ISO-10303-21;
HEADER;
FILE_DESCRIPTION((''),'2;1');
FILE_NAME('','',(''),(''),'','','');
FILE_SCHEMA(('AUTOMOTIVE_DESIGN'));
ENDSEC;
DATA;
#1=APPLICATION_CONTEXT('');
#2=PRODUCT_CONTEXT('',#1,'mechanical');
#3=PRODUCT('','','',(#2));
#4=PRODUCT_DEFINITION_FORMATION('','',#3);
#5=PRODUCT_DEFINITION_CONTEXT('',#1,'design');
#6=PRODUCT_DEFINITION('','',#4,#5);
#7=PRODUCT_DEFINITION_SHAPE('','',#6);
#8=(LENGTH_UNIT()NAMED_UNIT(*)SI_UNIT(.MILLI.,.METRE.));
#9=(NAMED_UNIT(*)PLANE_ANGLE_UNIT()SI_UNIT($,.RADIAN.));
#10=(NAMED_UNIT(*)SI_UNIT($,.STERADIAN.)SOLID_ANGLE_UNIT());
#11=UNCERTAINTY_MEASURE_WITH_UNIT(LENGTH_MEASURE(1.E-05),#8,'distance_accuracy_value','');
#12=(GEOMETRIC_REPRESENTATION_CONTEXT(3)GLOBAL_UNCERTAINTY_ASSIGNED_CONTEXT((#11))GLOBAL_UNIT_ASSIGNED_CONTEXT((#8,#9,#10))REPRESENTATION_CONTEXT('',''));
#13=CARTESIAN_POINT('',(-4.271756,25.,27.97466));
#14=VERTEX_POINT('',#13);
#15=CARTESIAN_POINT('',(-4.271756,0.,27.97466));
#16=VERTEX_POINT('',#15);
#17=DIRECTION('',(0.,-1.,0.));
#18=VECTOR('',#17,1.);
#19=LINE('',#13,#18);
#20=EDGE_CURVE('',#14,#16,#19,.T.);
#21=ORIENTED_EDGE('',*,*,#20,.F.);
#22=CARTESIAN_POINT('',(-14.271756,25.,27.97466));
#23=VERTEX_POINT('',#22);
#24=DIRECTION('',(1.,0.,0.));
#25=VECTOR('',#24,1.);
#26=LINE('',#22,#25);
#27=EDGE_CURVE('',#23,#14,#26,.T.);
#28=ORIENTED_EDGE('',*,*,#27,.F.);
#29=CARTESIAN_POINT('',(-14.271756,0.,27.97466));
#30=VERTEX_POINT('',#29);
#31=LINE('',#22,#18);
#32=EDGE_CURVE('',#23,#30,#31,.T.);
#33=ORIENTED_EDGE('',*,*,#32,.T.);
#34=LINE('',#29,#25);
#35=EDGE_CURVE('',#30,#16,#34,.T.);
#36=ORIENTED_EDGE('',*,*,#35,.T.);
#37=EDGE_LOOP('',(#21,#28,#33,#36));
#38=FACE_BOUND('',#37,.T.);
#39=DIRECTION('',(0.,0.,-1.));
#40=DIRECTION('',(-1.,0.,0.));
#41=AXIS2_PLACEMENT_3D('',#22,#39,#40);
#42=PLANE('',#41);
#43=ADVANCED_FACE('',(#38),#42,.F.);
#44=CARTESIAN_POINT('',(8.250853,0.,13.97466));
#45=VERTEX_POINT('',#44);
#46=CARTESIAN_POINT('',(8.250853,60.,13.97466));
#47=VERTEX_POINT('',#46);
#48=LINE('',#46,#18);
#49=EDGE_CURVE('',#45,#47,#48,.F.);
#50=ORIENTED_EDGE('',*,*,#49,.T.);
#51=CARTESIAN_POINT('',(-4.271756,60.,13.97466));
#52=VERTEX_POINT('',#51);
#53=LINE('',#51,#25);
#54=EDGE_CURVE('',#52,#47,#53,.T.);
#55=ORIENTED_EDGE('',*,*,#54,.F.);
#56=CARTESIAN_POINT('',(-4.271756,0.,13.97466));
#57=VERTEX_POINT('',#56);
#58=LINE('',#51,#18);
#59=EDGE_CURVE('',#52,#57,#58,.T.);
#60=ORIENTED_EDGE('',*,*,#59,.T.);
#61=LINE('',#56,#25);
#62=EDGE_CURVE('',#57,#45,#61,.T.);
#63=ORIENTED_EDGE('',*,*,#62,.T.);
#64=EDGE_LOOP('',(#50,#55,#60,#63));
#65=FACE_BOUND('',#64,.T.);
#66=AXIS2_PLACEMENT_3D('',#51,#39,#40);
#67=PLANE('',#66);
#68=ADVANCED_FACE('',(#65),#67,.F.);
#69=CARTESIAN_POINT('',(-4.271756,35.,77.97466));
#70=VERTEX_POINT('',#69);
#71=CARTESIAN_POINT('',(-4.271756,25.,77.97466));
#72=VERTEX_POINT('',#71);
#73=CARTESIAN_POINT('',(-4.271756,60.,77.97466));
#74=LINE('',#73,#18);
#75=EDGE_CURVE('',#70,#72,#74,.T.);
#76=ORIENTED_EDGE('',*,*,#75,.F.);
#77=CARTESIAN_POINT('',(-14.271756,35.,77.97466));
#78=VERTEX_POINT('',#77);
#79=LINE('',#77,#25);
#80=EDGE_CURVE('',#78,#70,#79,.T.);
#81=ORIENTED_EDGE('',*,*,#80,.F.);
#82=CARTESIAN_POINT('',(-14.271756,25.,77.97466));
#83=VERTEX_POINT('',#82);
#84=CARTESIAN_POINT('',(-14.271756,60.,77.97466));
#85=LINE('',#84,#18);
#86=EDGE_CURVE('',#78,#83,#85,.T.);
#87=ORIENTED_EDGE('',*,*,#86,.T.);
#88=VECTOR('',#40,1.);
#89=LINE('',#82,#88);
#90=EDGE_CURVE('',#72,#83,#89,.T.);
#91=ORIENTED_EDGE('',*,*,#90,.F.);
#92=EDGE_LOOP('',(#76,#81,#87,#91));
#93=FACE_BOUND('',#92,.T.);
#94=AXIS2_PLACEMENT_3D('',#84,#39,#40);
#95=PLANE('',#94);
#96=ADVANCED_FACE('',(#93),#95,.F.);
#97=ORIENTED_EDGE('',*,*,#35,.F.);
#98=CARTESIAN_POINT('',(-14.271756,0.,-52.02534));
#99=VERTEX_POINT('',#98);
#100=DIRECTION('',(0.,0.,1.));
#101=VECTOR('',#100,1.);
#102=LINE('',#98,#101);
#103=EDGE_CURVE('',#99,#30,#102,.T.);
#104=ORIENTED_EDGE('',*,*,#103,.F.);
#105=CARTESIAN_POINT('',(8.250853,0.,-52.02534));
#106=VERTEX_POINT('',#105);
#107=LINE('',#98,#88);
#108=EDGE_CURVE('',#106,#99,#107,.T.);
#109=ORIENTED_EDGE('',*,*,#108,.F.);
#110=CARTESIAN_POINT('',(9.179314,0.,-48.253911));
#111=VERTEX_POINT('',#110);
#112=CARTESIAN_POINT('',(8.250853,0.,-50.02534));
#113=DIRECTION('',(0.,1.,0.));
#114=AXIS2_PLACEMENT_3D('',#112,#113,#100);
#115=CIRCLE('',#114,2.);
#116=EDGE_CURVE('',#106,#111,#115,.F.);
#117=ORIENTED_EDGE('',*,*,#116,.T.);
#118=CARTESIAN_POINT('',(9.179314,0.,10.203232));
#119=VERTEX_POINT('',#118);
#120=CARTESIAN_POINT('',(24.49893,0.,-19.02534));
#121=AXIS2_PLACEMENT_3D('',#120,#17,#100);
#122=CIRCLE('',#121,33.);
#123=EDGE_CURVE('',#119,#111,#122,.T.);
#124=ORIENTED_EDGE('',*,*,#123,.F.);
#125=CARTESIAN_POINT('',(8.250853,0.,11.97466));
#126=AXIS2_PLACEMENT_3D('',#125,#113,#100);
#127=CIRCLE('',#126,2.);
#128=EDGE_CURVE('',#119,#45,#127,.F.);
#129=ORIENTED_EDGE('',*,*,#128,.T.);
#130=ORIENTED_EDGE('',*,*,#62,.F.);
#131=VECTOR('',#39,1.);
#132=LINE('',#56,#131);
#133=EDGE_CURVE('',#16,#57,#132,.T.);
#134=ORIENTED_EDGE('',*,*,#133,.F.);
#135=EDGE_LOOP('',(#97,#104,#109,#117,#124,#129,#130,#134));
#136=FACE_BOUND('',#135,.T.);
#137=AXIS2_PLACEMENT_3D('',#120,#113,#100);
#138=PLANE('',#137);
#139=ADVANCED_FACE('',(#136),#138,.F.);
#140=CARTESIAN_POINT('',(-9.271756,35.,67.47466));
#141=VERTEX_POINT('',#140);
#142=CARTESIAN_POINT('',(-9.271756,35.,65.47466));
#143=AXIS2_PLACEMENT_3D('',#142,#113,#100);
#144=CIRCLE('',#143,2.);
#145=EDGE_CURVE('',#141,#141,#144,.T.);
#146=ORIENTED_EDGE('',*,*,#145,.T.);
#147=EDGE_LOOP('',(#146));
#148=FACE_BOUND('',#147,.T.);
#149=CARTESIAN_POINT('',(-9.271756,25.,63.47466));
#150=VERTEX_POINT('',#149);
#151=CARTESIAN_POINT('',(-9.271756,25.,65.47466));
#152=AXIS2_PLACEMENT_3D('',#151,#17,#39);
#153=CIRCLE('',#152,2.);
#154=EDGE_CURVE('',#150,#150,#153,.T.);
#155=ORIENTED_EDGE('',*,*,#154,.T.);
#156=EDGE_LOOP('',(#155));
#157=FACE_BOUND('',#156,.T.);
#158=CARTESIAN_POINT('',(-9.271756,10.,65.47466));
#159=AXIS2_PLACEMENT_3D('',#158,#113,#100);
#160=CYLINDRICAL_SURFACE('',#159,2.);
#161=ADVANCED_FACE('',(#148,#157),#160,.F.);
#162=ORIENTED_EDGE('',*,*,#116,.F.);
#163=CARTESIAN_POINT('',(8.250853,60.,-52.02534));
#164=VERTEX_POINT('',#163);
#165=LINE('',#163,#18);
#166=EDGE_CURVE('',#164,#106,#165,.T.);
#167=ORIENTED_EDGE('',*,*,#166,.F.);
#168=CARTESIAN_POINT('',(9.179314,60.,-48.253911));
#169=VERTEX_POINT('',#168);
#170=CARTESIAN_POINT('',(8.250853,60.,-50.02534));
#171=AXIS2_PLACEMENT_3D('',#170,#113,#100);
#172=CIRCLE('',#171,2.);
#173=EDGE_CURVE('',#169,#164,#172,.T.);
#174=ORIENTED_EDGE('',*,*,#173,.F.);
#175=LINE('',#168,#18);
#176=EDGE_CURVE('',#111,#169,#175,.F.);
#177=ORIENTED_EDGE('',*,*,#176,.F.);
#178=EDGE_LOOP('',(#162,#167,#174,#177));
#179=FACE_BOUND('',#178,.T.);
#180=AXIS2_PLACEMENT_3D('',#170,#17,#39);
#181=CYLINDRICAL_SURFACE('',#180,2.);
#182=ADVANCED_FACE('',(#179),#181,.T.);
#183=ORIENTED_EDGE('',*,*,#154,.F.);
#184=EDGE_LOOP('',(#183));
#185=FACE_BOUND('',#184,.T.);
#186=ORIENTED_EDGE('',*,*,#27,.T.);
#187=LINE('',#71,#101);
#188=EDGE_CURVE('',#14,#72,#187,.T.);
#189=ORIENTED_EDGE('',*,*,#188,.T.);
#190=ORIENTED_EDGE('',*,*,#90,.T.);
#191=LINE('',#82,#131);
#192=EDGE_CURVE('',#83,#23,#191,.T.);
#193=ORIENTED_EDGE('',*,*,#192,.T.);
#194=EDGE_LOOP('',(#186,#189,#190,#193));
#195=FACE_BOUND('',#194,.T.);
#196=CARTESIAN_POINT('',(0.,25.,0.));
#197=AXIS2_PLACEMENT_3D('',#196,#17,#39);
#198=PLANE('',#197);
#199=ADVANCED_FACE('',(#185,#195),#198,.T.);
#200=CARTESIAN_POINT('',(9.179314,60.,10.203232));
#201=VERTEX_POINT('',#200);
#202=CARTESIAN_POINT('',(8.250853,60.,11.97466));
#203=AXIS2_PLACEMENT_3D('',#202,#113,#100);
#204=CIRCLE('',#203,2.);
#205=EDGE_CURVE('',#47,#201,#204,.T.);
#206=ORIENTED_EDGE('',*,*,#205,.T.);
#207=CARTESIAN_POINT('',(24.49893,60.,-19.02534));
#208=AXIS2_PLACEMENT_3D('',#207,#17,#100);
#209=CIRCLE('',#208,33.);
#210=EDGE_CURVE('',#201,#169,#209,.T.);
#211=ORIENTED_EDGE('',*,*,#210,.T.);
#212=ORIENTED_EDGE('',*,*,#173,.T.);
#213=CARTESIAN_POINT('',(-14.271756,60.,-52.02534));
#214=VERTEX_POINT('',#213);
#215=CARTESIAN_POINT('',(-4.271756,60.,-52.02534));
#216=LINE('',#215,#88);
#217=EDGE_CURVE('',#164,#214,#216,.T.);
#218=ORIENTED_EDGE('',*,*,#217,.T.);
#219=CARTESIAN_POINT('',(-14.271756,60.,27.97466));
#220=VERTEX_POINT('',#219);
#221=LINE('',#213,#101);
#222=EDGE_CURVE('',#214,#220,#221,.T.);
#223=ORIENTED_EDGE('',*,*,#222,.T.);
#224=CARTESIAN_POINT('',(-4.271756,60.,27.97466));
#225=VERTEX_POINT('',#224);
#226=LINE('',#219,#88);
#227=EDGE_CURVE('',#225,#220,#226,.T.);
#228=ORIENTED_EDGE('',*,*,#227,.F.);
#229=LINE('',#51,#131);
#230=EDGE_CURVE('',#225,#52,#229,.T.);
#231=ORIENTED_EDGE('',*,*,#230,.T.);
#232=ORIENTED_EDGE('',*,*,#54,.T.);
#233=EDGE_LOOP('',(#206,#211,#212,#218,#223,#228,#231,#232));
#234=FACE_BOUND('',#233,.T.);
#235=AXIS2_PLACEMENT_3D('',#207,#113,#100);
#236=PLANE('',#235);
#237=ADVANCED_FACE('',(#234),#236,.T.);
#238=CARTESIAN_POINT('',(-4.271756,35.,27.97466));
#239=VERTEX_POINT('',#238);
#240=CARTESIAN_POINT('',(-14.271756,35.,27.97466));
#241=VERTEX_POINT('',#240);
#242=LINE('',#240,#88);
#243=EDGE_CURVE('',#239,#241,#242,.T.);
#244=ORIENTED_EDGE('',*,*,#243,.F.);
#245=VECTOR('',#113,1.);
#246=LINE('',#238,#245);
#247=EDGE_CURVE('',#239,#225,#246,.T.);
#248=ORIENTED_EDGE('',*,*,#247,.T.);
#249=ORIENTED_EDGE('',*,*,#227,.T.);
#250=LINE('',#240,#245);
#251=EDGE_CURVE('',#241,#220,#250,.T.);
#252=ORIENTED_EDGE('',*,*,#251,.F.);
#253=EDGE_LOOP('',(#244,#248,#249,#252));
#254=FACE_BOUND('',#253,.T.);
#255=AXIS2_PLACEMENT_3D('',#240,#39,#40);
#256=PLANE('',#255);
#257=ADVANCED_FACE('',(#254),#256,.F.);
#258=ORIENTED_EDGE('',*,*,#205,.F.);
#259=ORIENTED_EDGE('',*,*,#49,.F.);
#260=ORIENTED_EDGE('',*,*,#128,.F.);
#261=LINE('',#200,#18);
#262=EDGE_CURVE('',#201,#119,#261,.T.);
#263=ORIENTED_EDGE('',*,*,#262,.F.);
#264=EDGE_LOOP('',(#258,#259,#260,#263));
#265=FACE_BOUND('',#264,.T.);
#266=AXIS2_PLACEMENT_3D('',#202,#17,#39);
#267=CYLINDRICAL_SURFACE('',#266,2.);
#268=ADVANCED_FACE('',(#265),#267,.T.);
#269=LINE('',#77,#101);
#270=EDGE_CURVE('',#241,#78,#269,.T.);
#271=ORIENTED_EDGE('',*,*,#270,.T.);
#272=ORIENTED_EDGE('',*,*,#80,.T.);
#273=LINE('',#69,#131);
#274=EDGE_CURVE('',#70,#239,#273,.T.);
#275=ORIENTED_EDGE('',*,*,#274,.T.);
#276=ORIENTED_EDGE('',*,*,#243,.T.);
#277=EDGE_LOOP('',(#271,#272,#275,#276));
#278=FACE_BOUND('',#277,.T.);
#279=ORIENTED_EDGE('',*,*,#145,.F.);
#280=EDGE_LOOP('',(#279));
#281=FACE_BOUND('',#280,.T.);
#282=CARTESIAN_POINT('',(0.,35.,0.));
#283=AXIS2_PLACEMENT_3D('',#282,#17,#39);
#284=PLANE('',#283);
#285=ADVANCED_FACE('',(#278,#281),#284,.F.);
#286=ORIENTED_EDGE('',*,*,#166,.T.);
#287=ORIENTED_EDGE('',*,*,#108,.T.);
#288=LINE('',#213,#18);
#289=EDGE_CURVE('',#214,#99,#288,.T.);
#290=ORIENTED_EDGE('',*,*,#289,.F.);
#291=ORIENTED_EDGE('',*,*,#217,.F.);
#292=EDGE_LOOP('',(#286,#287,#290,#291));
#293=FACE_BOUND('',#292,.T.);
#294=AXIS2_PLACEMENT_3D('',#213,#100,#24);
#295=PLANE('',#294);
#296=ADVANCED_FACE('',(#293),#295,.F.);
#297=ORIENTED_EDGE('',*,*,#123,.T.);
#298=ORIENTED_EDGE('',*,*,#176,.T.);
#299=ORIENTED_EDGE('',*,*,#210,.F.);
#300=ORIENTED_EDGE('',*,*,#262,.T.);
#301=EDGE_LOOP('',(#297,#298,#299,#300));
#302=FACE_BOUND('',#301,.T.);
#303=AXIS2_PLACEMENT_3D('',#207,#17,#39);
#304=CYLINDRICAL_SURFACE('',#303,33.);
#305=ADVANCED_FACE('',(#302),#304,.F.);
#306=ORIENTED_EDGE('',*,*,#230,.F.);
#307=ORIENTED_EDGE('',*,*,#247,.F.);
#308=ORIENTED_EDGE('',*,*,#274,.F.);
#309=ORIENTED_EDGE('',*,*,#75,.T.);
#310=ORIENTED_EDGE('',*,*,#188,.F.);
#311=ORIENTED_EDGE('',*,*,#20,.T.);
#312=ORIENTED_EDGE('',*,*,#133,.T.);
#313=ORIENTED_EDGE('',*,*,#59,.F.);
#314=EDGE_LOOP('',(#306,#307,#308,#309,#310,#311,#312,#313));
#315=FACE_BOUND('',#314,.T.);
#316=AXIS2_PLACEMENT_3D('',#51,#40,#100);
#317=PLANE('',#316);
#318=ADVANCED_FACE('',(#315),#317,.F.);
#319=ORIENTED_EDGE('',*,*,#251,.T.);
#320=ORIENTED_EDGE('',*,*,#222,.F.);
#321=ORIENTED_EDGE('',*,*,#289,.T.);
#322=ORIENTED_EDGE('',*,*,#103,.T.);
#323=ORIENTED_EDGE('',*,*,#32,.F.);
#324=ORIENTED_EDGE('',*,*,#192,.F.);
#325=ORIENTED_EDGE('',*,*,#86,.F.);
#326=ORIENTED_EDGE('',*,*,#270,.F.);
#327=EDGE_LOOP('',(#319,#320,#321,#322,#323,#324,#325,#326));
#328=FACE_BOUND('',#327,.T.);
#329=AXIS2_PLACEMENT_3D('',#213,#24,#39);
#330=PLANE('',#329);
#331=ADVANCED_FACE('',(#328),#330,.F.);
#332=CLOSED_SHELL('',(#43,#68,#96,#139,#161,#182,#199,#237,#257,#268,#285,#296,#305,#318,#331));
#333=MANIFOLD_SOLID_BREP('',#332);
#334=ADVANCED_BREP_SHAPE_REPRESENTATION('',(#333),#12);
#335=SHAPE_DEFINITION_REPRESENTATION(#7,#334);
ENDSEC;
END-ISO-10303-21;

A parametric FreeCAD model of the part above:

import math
import FreeCAD as App
import Part
import Sketcher

V = App.Vector
Q = App.Units.Quantity


def edges_at(feature, points):
    """Names of the edges that pass closest to the given points."""
    edges = feature.Shape.Edges
    near = lambda p: min(range(len(edges)), key=lambda i: edges[i].distToShape(Part.Vertex(*p))[0])
    return sorted({f"Edge{near(p) + 1}" for p in points})


def add_polygon(sketch, points):
    """Adds a closed chain of lines whose ends are joined by coincident constraints."""
    first, n = sketch.GeometryCount, len(points)
    for a, b in zip(points, points[1:] + points[:1]):
        sketch.addGeometry(Part.LineSegment(App.Vector(*a, 0), App.Vector(*b, 0)), False)
    for i in range(n):
        sketch.addConstraint(Sketcher.Constraint("Coincident", first + i, 2, first + (i + 1) % n, 1))

doc = App.newDocument("Part")
body = doc.addObject("PartDesign::Body", "Body")

# Sketch on XZ plane
sketch1 = doc.addObject("Sketcher::SketchObject", "Sketch")
body.addObject(sketch1)
sketch1.AttachmentSupport = (doc.XZ_Plane, [""])
sketch1.MapMode = "FlatFace"
sketch1.addGeometry([
    Part.ArcOfCircle(Part.Circle(V(24, -19, 0), V(0, 0, 1), 33), math.radians(90), math.radians(270)),  # 0
    Part.LineSegment(V(24, -52, 0), V(-14, -52, 0)),  # 1
    Part.LineSegment(V(-14, -52, 0), V(-14, 78, 0)),  # 2
    Part.LineSegment(V(-14, 78, 0), V(-4, 78, 0)),  # 3
    Part.LineSegment(V(-4, 78, 0), V(-4, 14, 0)),  # 4
    Part.LineSegment(V(-4, 14, 0), V(24, 14, 0)),  # 5
], False)
sketch1.addConstraint([
    Sketcher.Constraint("Tangent", 0, 2, 1, 1),
    Sketcher.Constraint("Coincident", 1, 2, 2, 1),
    Sketcher.Constraint("Coincident", 2, 2, 3, 1),
    Sketcher.Constraint("Coincident", 3, 2, 4, 1),
    Sketcher.Constraint("Coincident", 4, 2, 5, 1),
    Sketcher.Constraint("Tangent", 5, 2, 0, 1),
    Sketcher.Constraint("Horizontal", 1),
    Sketcher.Constraint("Vertical", 2),
    Sketcher.Constraint("Horizontal", 3),
    Sketcher.Constraint("Vertical", 4),
    Sketcher.Constraint("Horizontal", 5),
    Sketcher.Constraint("Radius", 0, Q("33 mm")),
    Sketcher.Constraint("DistanceX", 3, 1, 3, 2, Q("10 mm")),
    Sketcher.Constraint("DistanceY", 2, 1, 2, 2, Q("130 mm")),
    Sketcher.Constraint("DistanceX", 1, 2, 1, 1, Q("38.770686 mm")),
    Sketcher.Constraint("DistanceX", -1, 1, 0, 3, Q("24.49893 mm")),
    Sketcher.Constraint("DistanceY", 0, 3, -1, 1, Q("19.02534 mm")),
])
pad1 = doc.addObject("PartDesign::Pad", "Pad")
body.addObject(pad1)
pad1.Profile = sketch1
pad1.Length = 60
pad1.Reversed = True

# Sketch on XZ plane
sketch2 = doc.addObject("Sketcher::SketchObject", "Sketch001")
body.addObject(sketch2)
sketch2.AttachmentSupport = (doc.XZ_Plane, [""])
sketch2.MapMode = "FlatFace"
sketch2.AttachmentOffset = App.Placement(V(0, 0, -60), App.Rotation())
add_polygon(sketch2, [(-14, 28), (-14, 78), (-4, 78), (-4, 28)])  # lines 0-3
sketch2.addConstraint([
    Sketcher.Constraint("Vertical", 0),
    Sketcher.Constraint("Horizontal", 1),
    Sketcher.Constraint("Vertical", 2),
    Sketcher.Constraint("Horizontal", 3),
    Sketcher.Constraint("DistanceX", 1, 1, 1, 2, Q("10 mm")),
    Sketcher.Constraint("DistanceY", 0, 1, 0, 2, Q("50 mm")),
    Sketcher.Constraint("DistanceY", -1, 1, 0, 2, Q("77.97466 mm")),
    Sketcher.Constraint("DistanceX", 0, 2, -1, 1, Q("14.271756 mm")),
])
pocket1 = doc.addObject("PartDesign::Pocket", "Pocket")
body.addObject(pocket1)
pocket1.Profile = sketch2
pocket1.Length = 25
pocket1.Reversed = True

# Sketch on XZ plane
sketch3 = doc.addObject("Sketcher::SketchObject", "Sketch002")
body.addObject(sketch3)
sketch3.AttachmentSupport = (doc.XZ_Plane, [""])
sketch3.MapMode = "FlatFace"
add_polygon(sketch3, [(-14, 78), (-14, 28), (-4, 28), (-4, 78)])  # lines 0-3
sketch3.addConstraint([
    Sketcher.Constraint("Vertical", 0),
    Sketcher.Constraint("Horizontal", 1),
    Sketcher.Constraint("Vertical", 2),
    Sketcher.Constraint("Horizontal", 3),
    Sketcher.Constraint("DistanceX", 1, 1, 1, 2, Q("10 mm")),
    Sketcher.Constraint("DistanceY", 0, 2, 0, 1, Q("50 mm")),
    Sketcher.Constraint("DistanceY", -1, 1, 0, 2, Q("27.97466 mm")),
    Sketcher.Constraint("DistanceX", 0, 2, -1, 1, Q("14.271756 mm")),
])
pocket2 = doc.addObject("PartDesign::Pocket", "Pocket001")
body.addObject(pocket2)
pocket2.Profile = sketch3
pocket2.Length = 25
doc.recompute()

fillet = doc.addObject("PartDesign::Fillet", "Fillet")
body.addObject(fillet)
fillet.Base = (pocket2, edges_at(pocket2, [(24.499, 30, -52.025), (24.499, 30, 13.975)]))
fillet.Radius = 2

# Sketch on XZ plane
sketch4 = doc.addObject("Sketcher::SketchObject", "Sketch003")
body.addObject(sketch4)
sketch4.AttachmentSupport = (doc.XZ_Plane, [""])
sketch4.MapMode = "FlatFace"
sketch4.AttachmentOffset = App.Placement(V(0, 0, -35), App.Rotation())
sketch4.addGeometry(Part.Circle(V(-9.3, 65.5, 0), V(0, 0, 1), 2), False)
sketch4.addConstraint([
    Sketcher.Constraint("Diameter", 0, Q("4 mm")),
    Sketcher.Constraint("DistanceY", -1, 1, 0, 3, Q("65.47466 mm")),
    Sketcher.Constraint("DistanceX", 0, 3, -1, 1, Q("9.271756 mm")),
])
pocket3 = doc.addObject("PartDesign::Pocket", "Pocket002")
body.addObject(pocket3)
pocket3.Profile = sketch4
pocket3.Length = 25
pocket3.Reversed = True

doc.recompute()
